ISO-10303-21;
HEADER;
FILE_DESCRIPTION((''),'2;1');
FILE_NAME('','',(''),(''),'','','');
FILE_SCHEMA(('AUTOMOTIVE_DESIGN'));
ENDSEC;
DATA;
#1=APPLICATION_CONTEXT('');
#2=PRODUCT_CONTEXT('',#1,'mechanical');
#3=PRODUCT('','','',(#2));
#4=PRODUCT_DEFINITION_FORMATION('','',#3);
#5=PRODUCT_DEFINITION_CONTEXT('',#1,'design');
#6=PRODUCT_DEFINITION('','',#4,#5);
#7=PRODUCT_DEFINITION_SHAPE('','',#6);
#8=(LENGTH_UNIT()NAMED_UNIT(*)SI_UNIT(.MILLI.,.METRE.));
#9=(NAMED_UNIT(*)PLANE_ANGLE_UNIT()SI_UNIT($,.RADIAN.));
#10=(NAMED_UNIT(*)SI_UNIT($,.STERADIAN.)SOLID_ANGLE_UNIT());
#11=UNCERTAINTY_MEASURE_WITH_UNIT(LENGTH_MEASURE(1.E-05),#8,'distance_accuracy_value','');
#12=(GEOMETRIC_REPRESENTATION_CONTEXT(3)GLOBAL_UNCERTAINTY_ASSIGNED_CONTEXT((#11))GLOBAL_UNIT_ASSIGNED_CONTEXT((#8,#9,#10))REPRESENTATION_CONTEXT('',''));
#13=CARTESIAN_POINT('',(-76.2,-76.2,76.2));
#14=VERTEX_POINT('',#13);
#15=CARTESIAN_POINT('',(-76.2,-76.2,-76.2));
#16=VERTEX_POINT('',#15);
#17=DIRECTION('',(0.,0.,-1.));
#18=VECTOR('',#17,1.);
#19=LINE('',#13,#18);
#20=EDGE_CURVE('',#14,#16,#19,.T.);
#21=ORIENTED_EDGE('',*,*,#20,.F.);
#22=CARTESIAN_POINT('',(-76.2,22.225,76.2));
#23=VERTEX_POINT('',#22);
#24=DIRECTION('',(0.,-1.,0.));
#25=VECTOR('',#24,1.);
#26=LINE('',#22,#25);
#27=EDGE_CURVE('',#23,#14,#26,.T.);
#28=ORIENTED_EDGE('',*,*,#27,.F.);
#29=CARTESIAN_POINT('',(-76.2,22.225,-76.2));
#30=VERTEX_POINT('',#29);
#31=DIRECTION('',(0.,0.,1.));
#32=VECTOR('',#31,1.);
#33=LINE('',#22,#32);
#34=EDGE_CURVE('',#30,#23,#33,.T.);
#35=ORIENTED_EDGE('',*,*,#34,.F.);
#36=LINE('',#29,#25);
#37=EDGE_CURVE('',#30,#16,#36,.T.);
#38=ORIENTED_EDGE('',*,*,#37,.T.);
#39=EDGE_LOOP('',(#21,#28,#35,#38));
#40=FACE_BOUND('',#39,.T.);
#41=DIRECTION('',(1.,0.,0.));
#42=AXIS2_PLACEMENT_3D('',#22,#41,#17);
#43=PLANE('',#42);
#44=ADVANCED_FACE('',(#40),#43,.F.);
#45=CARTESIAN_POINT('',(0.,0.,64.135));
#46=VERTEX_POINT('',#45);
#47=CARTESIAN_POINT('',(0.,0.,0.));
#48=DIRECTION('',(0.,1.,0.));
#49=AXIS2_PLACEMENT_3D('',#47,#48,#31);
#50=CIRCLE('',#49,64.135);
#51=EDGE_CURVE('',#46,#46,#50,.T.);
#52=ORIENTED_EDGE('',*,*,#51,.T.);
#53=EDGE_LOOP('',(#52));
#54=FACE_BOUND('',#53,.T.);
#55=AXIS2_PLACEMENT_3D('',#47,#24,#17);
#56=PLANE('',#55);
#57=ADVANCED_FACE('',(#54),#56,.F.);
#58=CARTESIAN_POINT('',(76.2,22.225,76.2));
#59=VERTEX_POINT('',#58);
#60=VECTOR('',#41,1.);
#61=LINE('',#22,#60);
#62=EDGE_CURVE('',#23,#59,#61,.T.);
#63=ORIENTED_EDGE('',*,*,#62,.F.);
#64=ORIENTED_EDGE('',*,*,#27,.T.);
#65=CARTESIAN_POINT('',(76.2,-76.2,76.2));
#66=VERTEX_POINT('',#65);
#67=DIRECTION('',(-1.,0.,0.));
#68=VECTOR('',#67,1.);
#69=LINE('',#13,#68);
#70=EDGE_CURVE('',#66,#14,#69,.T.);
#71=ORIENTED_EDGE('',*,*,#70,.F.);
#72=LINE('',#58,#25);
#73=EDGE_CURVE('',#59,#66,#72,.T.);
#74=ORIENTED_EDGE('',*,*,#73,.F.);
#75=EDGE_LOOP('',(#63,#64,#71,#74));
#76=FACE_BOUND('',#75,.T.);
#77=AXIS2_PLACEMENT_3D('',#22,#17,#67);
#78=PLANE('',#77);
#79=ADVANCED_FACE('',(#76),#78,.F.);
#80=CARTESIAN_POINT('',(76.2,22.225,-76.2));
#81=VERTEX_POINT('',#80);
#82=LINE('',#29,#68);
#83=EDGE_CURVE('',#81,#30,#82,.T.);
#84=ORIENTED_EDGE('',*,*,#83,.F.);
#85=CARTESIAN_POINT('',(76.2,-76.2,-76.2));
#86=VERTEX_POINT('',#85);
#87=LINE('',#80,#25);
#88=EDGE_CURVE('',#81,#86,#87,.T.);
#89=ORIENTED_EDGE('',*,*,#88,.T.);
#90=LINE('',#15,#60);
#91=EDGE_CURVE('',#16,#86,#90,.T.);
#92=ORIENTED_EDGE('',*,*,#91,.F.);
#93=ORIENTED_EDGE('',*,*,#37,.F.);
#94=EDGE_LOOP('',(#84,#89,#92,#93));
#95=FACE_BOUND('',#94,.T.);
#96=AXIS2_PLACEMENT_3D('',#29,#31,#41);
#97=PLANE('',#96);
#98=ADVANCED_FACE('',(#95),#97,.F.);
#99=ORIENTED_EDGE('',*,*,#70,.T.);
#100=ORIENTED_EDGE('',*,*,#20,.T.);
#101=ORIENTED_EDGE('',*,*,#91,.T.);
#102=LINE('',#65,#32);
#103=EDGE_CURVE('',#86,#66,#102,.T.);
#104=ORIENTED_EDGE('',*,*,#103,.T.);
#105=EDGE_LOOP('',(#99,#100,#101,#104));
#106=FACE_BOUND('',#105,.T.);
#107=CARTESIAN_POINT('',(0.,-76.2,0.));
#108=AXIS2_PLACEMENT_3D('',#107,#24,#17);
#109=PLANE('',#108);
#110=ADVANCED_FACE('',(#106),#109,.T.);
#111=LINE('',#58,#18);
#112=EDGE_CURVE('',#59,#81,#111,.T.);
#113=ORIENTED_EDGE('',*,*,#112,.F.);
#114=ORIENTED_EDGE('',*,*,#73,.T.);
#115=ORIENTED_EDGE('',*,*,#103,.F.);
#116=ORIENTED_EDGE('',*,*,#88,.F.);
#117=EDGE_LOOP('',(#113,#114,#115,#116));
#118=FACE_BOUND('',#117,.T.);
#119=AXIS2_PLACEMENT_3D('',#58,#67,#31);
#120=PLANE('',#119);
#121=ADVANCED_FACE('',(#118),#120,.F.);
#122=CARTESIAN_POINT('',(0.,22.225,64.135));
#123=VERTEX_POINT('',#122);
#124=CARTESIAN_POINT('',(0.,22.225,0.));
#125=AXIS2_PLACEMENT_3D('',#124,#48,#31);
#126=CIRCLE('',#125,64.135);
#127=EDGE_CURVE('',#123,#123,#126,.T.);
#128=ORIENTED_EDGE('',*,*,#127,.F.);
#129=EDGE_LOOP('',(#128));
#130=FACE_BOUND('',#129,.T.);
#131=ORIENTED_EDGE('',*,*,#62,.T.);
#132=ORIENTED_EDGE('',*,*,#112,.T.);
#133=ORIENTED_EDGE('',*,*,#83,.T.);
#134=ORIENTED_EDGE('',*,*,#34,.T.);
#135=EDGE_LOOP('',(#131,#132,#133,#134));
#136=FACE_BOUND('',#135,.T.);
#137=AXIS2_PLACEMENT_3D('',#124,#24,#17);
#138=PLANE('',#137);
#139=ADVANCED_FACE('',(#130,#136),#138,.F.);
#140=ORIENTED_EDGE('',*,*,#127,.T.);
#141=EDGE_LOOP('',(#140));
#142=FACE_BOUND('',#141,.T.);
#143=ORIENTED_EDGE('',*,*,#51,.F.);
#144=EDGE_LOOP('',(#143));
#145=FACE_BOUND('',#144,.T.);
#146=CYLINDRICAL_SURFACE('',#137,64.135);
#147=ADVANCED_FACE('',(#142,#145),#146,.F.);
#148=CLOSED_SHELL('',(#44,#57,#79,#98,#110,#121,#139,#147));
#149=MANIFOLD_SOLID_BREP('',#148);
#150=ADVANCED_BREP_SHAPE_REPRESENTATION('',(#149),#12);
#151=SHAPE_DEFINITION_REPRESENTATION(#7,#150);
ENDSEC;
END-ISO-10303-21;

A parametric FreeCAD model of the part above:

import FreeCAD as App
import Part
import Sketcher
from FreeCAD import Vector
Q = App.Units.Quantity


def add_polygon(sketch, points):
    """Adds a closed chain of lines whose ends are joined by coincident constraints."""
    first, n = sketch.GeometryCount, len(points)
    for a, b in zip(points, points[1:] + points[:1]):
        sketch.addGeometry(Part.LineSegment(App.Vector(*a, 0), App.Vector(*b, 0)), False)
    for i in range(n):
        sketch.addConstraint(Sketcher.Constraint("Coincident", first + i, 2, first + (i + 1) % n, 1))

doc = App.newDocument("Part")
body = doc.addObject("PartDesign::Body", "Body")

sketch1 = body.newObject("Sketcher::SketchObject", "Sketch")
sketch1.AttachmentSupport = (doc.getObject("XZ_Plane"), [""])
sketch1.MapMode = "FlatFace"
add_polygon(sketch1, [(-76, -76), (-76, 76), (76, 76), (76, -76)])
sketch1.addGeometry(Part.Circle(Vector(0, 0, 0), Vector(0, 0, 1), 64), False)
sketch1.addConstraint([
    Sketcher.Constraint("Vertical", 0),
    Sketcher.Constraint("Horizontal", 1),
    Sketcher.Constraint("Vertical", 2),
    Sketcher.Constraint("Horizontal", 3),
    Sketcher.Constraint("Coincident", 4, 3, -1, 1),
    Sketcher.Constraint("Symmetric", 0, 2, 2, 2, -1, 1),
    Sketcher.Constraint("Equal", 3, 0),
    Sketcher.Constraint("Diameter", 4, Q("5.05 in")),
    Sketcher.Constraint("DistanceX", 1, 1, 1, 2, Q("6 in")),
])
pad1 = body.newObject("PartDesign::Pad", "Pad")
pad1.Profile = sketch1
pad1.Length = Q("0.875 in")
pad1.Reversed = True

sketch2 = body.newObject("Sketcher::SketchObject", "Sketch001")
sketch2.AttachmentSupport = (doc.getObject("XZ_Plane"), [""])
sketch2.MapMode = "FlatFace"
add_polygon(sketch2, [(76, -76), (76, 76), (-76, 76), (-76, -76)])
sketch2.addConstraint([
    Sketcher.Constraint("Vertical", 0),
    Sketcher.Constraint("Horizontal", 1),
    Sketcher.Constraint("Vertical", 2),
    Sketcher.Constraint("Horizontal", 3),
    Sketcher.Constraint("Symmetric", 0, 2, 2, 2, -1, 1),
    Sketcher.Constraint("Equal", 3, 0),
    Sketcher.Constraint("DistanceX", 1, 2, 1, 1, Q("6 in")),
])
pad2 = body.newObject("PartDesign::Pad", "Pad001")
pad2.Profile = sketch2
pad2.Length = Q("3 in")

doc.recompute()
